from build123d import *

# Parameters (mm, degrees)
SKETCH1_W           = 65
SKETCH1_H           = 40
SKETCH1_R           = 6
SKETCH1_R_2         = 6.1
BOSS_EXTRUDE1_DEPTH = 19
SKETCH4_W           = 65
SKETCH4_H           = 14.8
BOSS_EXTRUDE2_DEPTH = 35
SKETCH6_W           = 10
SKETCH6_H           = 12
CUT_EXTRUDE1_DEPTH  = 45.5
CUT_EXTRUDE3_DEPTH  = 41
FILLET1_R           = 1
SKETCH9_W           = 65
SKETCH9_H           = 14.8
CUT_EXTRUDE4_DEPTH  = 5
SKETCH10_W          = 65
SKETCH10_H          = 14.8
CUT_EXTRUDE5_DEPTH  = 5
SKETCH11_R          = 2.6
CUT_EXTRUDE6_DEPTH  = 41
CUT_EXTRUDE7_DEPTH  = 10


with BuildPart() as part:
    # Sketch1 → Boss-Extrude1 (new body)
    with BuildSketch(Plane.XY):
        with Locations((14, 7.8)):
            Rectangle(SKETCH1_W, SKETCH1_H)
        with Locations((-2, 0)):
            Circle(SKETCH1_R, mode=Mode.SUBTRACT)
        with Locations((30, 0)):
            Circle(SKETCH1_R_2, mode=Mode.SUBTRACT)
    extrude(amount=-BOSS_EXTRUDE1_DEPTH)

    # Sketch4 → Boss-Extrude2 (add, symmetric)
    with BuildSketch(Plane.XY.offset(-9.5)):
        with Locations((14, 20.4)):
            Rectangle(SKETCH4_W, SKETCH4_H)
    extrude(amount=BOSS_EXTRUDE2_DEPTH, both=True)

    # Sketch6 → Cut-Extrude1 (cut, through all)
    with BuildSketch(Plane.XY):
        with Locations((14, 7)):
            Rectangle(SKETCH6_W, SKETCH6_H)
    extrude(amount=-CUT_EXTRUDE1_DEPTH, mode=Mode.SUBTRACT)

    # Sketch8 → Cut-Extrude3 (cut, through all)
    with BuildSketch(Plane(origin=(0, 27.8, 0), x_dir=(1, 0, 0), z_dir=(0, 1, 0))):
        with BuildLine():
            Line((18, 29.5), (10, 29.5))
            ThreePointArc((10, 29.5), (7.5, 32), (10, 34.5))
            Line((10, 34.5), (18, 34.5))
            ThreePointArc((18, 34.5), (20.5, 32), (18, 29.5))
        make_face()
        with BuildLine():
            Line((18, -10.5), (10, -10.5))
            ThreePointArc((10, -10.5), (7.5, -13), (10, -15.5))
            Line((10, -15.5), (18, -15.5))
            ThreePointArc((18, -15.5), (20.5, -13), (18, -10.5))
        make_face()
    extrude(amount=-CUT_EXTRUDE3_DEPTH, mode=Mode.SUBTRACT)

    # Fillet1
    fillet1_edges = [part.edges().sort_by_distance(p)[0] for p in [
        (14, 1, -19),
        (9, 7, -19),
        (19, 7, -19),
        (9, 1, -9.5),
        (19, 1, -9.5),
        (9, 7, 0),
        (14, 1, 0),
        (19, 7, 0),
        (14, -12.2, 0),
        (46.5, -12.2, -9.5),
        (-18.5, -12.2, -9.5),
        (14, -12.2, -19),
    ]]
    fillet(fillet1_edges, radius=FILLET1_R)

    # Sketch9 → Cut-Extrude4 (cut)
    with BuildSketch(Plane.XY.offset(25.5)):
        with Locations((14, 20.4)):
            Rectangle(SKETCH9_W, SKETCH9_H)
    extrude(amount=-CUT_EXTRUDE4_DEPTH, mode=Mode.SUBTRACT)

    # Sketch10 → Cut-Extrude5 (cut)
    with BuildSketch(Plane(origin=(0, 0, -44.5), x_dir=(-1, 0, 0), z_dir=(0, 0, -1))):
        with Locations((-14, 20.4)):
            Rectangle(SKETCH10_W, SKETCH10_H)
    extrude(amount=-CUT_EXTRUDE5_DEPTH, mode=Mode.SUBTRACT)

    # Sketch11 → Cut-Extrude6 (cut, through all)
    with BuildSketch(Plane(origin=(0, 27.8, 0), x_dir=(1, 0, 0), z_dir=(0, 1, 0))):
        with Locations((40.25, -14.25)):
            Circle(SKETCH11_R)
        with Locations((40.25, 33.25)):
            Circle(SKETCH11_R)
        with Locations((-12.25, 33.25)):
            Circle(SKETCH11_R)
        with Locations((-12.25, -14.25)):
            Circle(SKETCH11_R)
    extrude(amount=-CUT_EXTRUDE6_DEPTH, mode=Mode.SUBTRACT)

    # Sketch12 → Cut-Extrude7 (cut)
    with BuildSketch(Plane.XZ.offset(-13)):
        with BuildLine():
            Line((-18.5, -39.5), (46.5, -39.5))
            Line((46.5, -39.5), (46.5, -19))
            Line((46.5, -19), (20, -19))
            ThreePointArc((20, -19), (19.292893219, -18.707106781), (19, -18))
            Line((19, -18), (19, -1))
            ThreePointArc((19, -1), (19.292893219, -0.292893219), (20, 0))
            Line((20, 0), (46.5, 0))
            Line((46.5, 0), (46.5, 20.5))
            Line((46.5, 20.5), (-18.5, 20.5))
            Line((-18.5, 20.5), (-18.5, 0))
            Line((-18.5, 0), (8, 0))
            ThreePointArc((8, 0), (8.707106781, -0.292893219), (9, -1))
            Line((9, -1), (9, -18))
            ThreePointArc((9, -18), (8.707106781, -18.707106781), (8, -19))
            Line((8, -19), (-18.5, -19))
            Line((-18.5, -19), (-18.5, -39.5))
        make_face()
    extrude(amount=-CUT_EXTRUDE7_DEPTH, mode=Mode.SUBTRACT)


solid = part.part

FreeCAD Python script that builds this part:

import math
import FreeCAD as App
import Part
import Sketcher

V = App.Vector
Q = App.Units.Quantity


def edges_at(feature, points):
    """Names of the edges that pass closest to the given points."""
    edges = feature.Shape.Edges
    near = lambda p: min(range(len(edges)), key=lambda i: edges[i].distToShape(Part.Vertex(*p))[0])
    return sorted({f"Edge{near(p) + 1}" for p in points})

doc = App.newDocument("Part")
params = doc.addObject("Spreadsheet::Sheet", "Params")
for row, (alias, value) in enumerate([
    ("sketch1_diameter", "12 mm"),
    ("sketch1_diameter2", "12.2 mm"),
    ("sketch1_width", "65 mm"),
    ("sketch1_height", "40 mm"),
    ("pad1_length", "19 mm"),
    ("sketch2_width", "65 mm"),
    ("sketch2_height", "14.8 mm"),
    ("pad2_length", "70 mm"),
    ("sketch3_width", "10 mm"),
    ("sketch3_height", "12 mm"),
    ("sketch4_radius", "2.5 mm"),
    ("sketch4_width", "8 mm"),
    ("fillet_radius", "1 mm"),
    ("sketch5_width", "65 mm"),
    ("sketch5_height", "14.8 mm"),
    ("pocket3_length", "5 mm"),
    ("sketch6_width", "65 mm"),
    ("sketch6_height", "14.8 mm"),
    ("pocket4_length", "5 mm"),
    ("sketch7_diameter", "5.2 mm"),
    ("sketch8_radius", "1 mm"),
    ("sketch8_width", "65 mm"),
    ("sketch8_height", "17 mm"),
    ("sketch8_width2", "26.5 mm"),
    ("sketch8_height2", "20.5 mm"),
    ("pocket6_length", "10 mm"),
], start=1):
    params.set(f"A{row}", alias)
    params.set(f"B{row}", "=" + value)
    params.setAlias(f"B{row}", alias)

body = doc.addObject("PartDesign::Body", "Body")

sketch1 = doc.addObject("Sketcher::SketchObject", "Sketch")
body.addObject(sketch1)
sketch1.AttachmentSupport = (doc.XY_Plane, [""])
sketch1.MapMode = "FlatFace"
sketch1.addGeometry([
    Part.LineSegment(V(-18, 28, 0), V(-18, -12, 0)),
    Part.LineSegment(V(-18, -12, 0), V(46, -12, 0)),
    Part.LineSegment(V(46, -12, 0), V(46, 28, 0)),
    Part.LineSegment(V(46, 28, 0), V(-18, 28, 0)),
    Part.Circle(V(-2, 0, 0), V(0, 0, 1), 6),
    Part.Circle(V(30, 0, 0), V(0, 0, 1), 6),
], False)
sketch1.addConstraint([
    Sketcher.Constraint("Coincident", 0, 2, 1, 1),
    Sketcher.Constraint("Coincident", 1, 2, 2, 1),
    Sketcher.Constraint("Coincident", 2, 2, 3, 1),
    Sketcher.Constraint("Coincident", 3, 2, 0, 1),
    Sketcher.Constraint("Vertical", 0),
    Sketcher.Constraint("Horizontal", 1),
    Sketcher.Constraint("Vertical", 2),
    Sketcher.Constraint("Horizontal", 3),
    Sketcher.Constraint("PointOnObject", 4, 3, -1),
    Sketcher.Constraint("PointOnObject", 5, 3, -1),
    Sketcher.Constraint("Diameter", 4, Q("12 mm")),
    Sketcher.Constraint("Diameter", 5, Q("12.2 mm")),
    Sketcher.Constraint("DistanceX", 1, 1, 1, 2, Q("65 mm")),
    Sketcher.Constraint("DistanceY", 0, 2, 0, 1, Q("40 mm")),
    Sketcher.Constraint("DistanceX", 4, 3, -1, 1, Q("2 mm")),
    Sketcher.Constraint("DistanceX", -1, 1, 5, 3, Q("30 mm")),
    Sketcher.Constraint("DistanceX", 0, 2, -1, 1, Q("18.5 mm")),
    Sketcher.Constraint("DistanceY", 0, 2, -1, 1, Q("12.2 mm")),
])
sketch1.setExpression("Constraints[10]", "Params.sketch1_diameter")
sketch1.setExpression("Constraints[11]", "Params.sketch1_diameter2")
sketch1.setExpression("Constraints[12]", "Params.sketch1_width")
sketch1.setExpression("Constraints[13]", "Params.sketch1_height")
pad1 = doc.addObject("PartDesign::Pad", "Pad")
body.addObject(pad1)
pad1.Profile = sketch1
pad1.setExpression("Length", "Params.pad1_length")
pad1.Reversed = True

sketch2 = doc.addObject("Sketcher::SketchObject", "Sketch001")
body.addObject(sketch2)
sketch2.AttachmentSupport = (doc.XY_Plane, [""])
sketch2.MapMode = "FlatFace"
sketch2.AttachmentOffset = App.Placement(V(0, 0, -9.5), App.Rotation())
sketch2.addGeometry([
    Part.LineSegment(V(-18, 28, 0), V(-18, 13, 0)),
    Part.LineSegment(V(-18, 13, 0), V(46, 13, 0)),
    Part.LineSegment(V(46, 13, 0), V(46, 28, 0)),
    Part.LineSegment(V(46, 28, 0), V(-18, 28, 0)),
], False)
sketch2.addConstraint([
    Sketcher.Constraint("Coincident", 0, 2, 1, 1),
    Sketcher.Constraint("Coincident", 1, 2, 2, 1),
    Sketcher.Constraint("Coincident", 2, 2, 3, 1),
    Sketcher.Constraint("Coincident", 3, 2, 0, 1),
    Sketcher.Constraint("Vertical", 0),
    Sketcher.Constraint("Horizontal", 1),
    Sketcher.Constraint("Vertical", 2),
    Sketcher.Constraint("Horizontal", 3),
    Sketcher.Constraint("DistanceX", 1, 1, 1, 2, Q("65 mm")),
    Sketcher.Constraint("DistanceY", 0, 2, 0, 1, Q("14.8 mm")),
    Sketcher.Constraint("DistanceY", -1, 1, 0, 2, Q("13 mm")),
    Sketcher.Constraint("DistanceX", 0, 2, -1, 1, Q("18.5 mm")),
])
sketch2.setExpression("Constraints[8]", "Params.sketch2_width")
sketch2.setExpression("Constraints[9]", "Params.sketch2_height")
pad2 = doc.addObject("PartDesign::Pad", "Pad001")
body.addObject(pad2)
pad2.Profile = sketch2
pad2.setExpression("Length", "Params.pad2_length")
pad2.Midplane = True

sketch3 = doc.addObject("Sketcher::SketchObject", "Sketch002")
body.addObject(sketch3)
sketch3.AttachmentSupport = (doc.XY_Plane, [""])
sketch3.MapMode = "FlatFace"
sketch3.addGeometry([
    Part.LineSegment(V(9, 13, 0), V(9, 1, 0)),
    Part.LineSegment(V(9, 1, 0), V(19, 1, 0)),
    Part.LineSegment(V(19, 1, 0), V(19, 13, 0)),
    Part.LineSegment(V(19, 13, 0), V(9, 13, 0)),
], False)
sketch3.addConstraint([
    Sketcher.Constraint("Coincident", 0, 2, 1, 1),
    Sketcher.Constraint("Coincident", 1, 2, 2, 1),
    Sketcher.Constraint("Coincident", 2, 2, 3, 1),
    Sketcher.Constraint("Coincident", 3, 2, 0, 1),
    Sketcher.Constraint("Vertical", 0),
    Sketcher.Constraint("Horizontal", 1),
    Sketcher.Constraint("Vertical", 2),
    Sketcher.Constraint("Horizontal", 3),
    Sketcher.Constraint("DistanceX", 1, 1, 1, 2, Q("10 mm")),
    Sketcher.Constraint("DistanceY", 0, 2, 0, 1, Q("12 mm")),
    Sketcher.Constraint("DistanceX", -1, 1, 0, 2, Q("9 mm")),
    Sketcher.Constraint("DistanceY", -1, 1, 0, 2, Q("1 mm")),
])
sketch3.setExpression("Constraints[8]", "Params.sketch3_width")
sketch3.setExpression("Constraints[9]", "Params.sketch3_height")
pocket1 = doc.addObject("PartDesign::Pocket", "Pocket")
body.addObject(pocket1)
pocket1.Profile = sketch3
pocket1.Type = "ThroughAll"

sketch4 = doc.addObject("Sketcher::SketchObject", "Sketch003")
body.addObject(sketch4)
sketch4.AttachmentSupport = (doc.XZ_Plane, [""])
sketch4.MapMode = "FlatFace"
sketch4.AttachmentOffset = App.Placement(V(0, 0, -27.8), App.Rotation())
sketch4.addGeometry([
    Part.LineSegment(V(10, -29.5, 0), V(18, -29.5, 0)),
    Part.ArcOfCircle(Part.Circle(V(18, -32, 0), V(0, 0, 1), 2.5), math.radians(-90), math.radians(90)),
    Part.LineSegment(V(18, -34.5, 0), V(10, -34.5, 0)),
    Part.ArcOfCircle(Part.Circle(V(10, -32, 0), V(0, 0, 1), 2.5), math.radians(90), math.radians(270)),
    Part.LineSegment(V(18, 10.5, 0), V(10, 10.5, 0)),
    Part.ArcOfCircle(Part.Circle(V(10, 13, 0), V(0, 0, 1), 2.5), math.radians(90), math.radians(270)),
    Part.LineSegment(V(10, 15.5, 0), V(18, 15.5, 0)),
    Part.ArcOfCircle(Part.Circle(V(18, 13, 0), V(0, 0, 1), 2.5), math.radians(-90), math.radians(90)),
], False)
sketch4.addConstraint([
    Sketcher.Constraint("Tangent", 0, 2, 1, 2),
    Sketcher.Constraint("Tangent", 1, 1, 2, 1),
    Sketcher.Constraint("Tangent", 2, 2, 3, 2),
    Sketcher.Constraint("Tangent", 3, 1, 0, 1),
    Sketcher.Constraint("Tangent", 4, 2, 5, 2),
    Sketcher.Constraint("Tangent", 5, 1, 6, 1),
    Sketcher.Constraint("Tangent", 6, 2, 7, 2),
    Sketcher.Constraint("Tangent", 7, 1, 4, 1),
    Sketcher.Constraint("Horizontal", 0),
    Sketcher.Constraint("Horizontal", 2),
    Sketcher.Constraint("Horizontal", 4),
    Sketcher.Constraint("Horizontal", 6),
    Sketcher.Constraint("Equal", 3, 5),
    Sketcher.Constraint("Vertical", 3, 3, 5, 3),
    Sketcher.Constraint("Vertical", 1, 3, 7, 3),
    Sketcher.Constraint("Radius", 1, Q("2.5 mm")),
    Sketcher.Constraint("DistanceX", 0, 1, 0, 2, Q("8 mm")),
    Sketcher.Constraint("DistanceX", -1, 1, 1, 3, Q("18 mm")),
    Sketcher.Constraint("DistanceY", 1, 3, -1, 1, Q("32 mm")),
    Sketcher.Constraint("DistanceY", -1, 1, 5, 3, Q("13 mm")),
])
sketch4.setExpression("Constraints[15]", "Params.sketch4_radius")
sketch4.setExpression("Constraints[16]", "Params.sketch4_width")
pocket2 = doc.addObject("PartDesign::Pocket", "Pocket001")
body.addObject(pocket2)
pocket2.Profile = sketch4
pocket2.Type = "ThroughAll"
pocket2.Reversed = True
doc.recompute()

fillet = doc.addObject("PartDesign::Fillet", "Fillet")
body.addObject(fillet)
fillet.Base = (pocket2, edges_at(pocket2, [
    (14, 1, -19),
    (9, 7, -19),
    (19, 7, -19),
    (9, 1, -9.5),
    (19, 1, -9.5),
    (9, 7, 0),
    (14, 1, 0),
    (19, 7, 0),
    (14, -12.2, 0),
    (46.5, -12.2, -9.5),
    (-18.5, -12.2, -9.5),
    (14, -12.2, -19),
]))
fillet.setExpression("Radius", "Params.fillet_radius")

sketch5 = doc.addObject("Sketcher::SketchObject", "Sketch004")
body.addObject(sketch5)
sketch5.AttachmentSupport = (doc.XY_Plane, [""])
sketch5.MapMode = "FlatFace"
sketch5.AttachmentOffset = App.Placement(V(0, 0, 25.5), App.Rotation())
sketch5.addGeometry([
    Part.LineSegment(V(-18, 28, 0), V(-18, 13, 0)),
    Part.LineSegment(V(-18, 13, 0), V(46, 13, 0)),
    Part.LineSegment(V(46, 13, 0), V(46, 28, 0)),
    Part.LineSegment(V(46, 28, 0), V(-18, 28, 0)),
], False)
sketch5.addConstraint([
    Sketcher.Constraint("Coincident", 0, 2, 1, 1),
    Sketcher.Constraint("Coincident", 1, 2, 2, 1),
    Sketcher.Constraint("Coincident", 2, 2, 3, 1),
    Sketcher.Constraint("Coincident", 3, 2, 0, 1),
    Sketcher.Constraint("Vertical", 0),
    Sketcher.Constraint("Horizontal", 1),
    Sketcher.Constraint("Vertical", 2),
    Sketcher.Constraint("Horizontal", 3),
    Sketcher.Constraint("DistanceX", 1, 1, 1, 2, Q("65 mm")),
    Sketcher.Constraint("DistanceY", 0, 2, 0, 1, Q("14.8 mm")),
    Sketcher.Constraint("DistanceY", -1, 1, 0, 2, Q("13 mm")),
    Sketcher.Constraint("DistanceX", 0, 2, -1, 1, Q("18.5 mm")),
])
sketch5.setExpression("Constraints[8]", "Params.sketch5_width")
sketch5.setExpression("Constraints[9]", "Params.sketch5_height")
pocket3 = doc.addObject("PartDesign::Pocket", "Pocket002")
body.addObject(pocket3)
pocket3.Profile = sketch5
pocket3.setExpression("Length", "Params.pocket3_length")

sketch6 = doc.addObject("Sketcher::SketchObject", "Sketch005")
body.addObject(sketch6)
sketch6.AttachmentSupport = (doc.XY_Plane, [""])
sketch6.MapMode = "FlatFace"
sketch6.AttachmentOffset = App.Placement(V(0, 0, -44.5), App.Rotation())
sketch6.addGeometry([
    Part.LineSegment(V(46, 28, 0), V(46, 13, 0)),
    Part.LineSegment(V(46, 13, 0), V(-18, 13, 0)),
    Part.LineSegment(V(-18, 13, 0), V(-18, 28, 0)),
    Part.LineSegment(V(-18, 28, 0), V(46, 28, 0)),
], False)
sketch6.addConstraint([
    Sketcher.Constraint("Coincident", 0, 2, 1, 1),
    Sketcher.Constraint("Coincident", 1, 2, 2, 1),
    Sketcher.Constraint("Coincident", 2, 2, 3, 1),
    Sketcher.Constraint("Coincident", 3, 2, 0, 1),
    Sketcher.Constraint("Vertical", 0),
    Sketcher.Constraint("Horizontal", 1),
    Sketcher.Constraint("Vertical", 2),
    Sketcher.Constraint("Horizontal", 3),
    Sketcher.Constraint("DistanceX", 1, 2, 1, 1, Q("65 mm")),
    Sketcher.Constraint("DistanceY", 0, 2, 0, 1, Q("14.8 mm")),
    Sketcher.Constraint("DistanceY", -1, 1, 0, 2, Q("13 mm")),
    Sketcher.Constraint("DistanceX", -1, 1, 0, 2, Q("46.5 mm")),
])
sketch6.setExpression("Constraints[8]", "Params.sketch6_width")
sketch6.setExpression("Constraints[9]", "Params.sketch6_height")
pocket4 = doc.addObject("PartDesign::Pocket", "Pocket003")
body.addObject(pocket4)
pocket4.Profile = sketch6
pocket4.setExpression("Length", "Params.pocket4_length")
pocket4.Reversed = True

sketch7 = doc.addObject("Sketcher::SketchObject", "Sketch006")
body.addObject(sketch7)
sketch7.AttachmentSupport = (doc.XZ_Plane, [""])
sketch7.MapMode = "FlatFace"
sketch7.AttachmentOffset = App.Placement(V(0, 0, -27.8), App.Rotation())
sketch7.addGeometry([
    Part.Circle(V(40.2, 14.2, 0), V(0, 0, 1), 2.6),
    Part.Circle(V(40.2, -33.2, 0), V(0, 0, 1), 2.6),
    Part.Circle(V(-12.2, -33.2, 0), V(0, 0, 1), 2.6),
    Part.Circle(V(-12.2, 14.2, 0), V(0, 0, 1), 2.6),
], False)
sketch7.addConstraint([
    Sketcher.Constraint("Equal", 0, 1),
    Sketcher.Constraint("Equal", 1, 2),
    Sketcher.Constraint("Equal", 2, 3),
    Sketcher.Constraint("Horizontal", 1, 3, 2, 3),
    Sketcher.Constraint("Horizontal", 0, 3, 3, 3),
    Sketcher.Constraint("Vertical", 0, 3, 1, 3),
    Sketcher.Constraint("Vertical", 2, 3, 3, 3),
    Sketcher.Constraint("Diameter", 0, Q("5.2 mm")),
    Sketcher.Constraint("DistanceY", 1, 3, 0, 3, Q("47.5 mm")),
    Sketcher.Constraint("DistanceX", 2, 3, 1, 3, Q("52.5 mm")),
    Sketcher.Constraint("DistanceX", -1, 1, 0, 3, Q("40.25 mm")),
    Sketcher.Constraint("DistanceY", -1, 1, 0, 3, Q("14.25 mm")),
])
sketch7.setExpression("Constraints[7]", "Params.sketch7_diameter")
pocket5 = doc.addObject("PartDesign::Pocket", "Pocket004")
body.addObject(pocket5)
pocket5.Profile = sketch7
pocket5.Type = "ThroughAll"
pocket5.Reversed = True

sketch8 = doc.addObject("Sketcher::SketchObject", "Sketch007")
body.addObject(sketch8)
sketch8.AttachmentSupport = (doc.XZ_Plane, [""])
sketch8.MapMode = "FlatFace"
sketch8.AttachmentOffset = App.Placement(V(0, 0, -13), App.Rotation())
sketch8.addGeometry([
    Part.LineSegment(V(-18.5, -39.5, 0), V(46.5, -39.5, 0)),
    Part.LineSegment(V(46.5, -39.5, 0), V(46.5, -19, 0)),
    Part.LineSegment(V(46.5, -19, 0), V(20, -19, 0)),
    Part.ArcOfCircle(Part.Circle(V(20, -18, 0), V(0, 0, 1), 1), math.radians(-180), math.radians(-90)),
    Part.LineSegment(V(19, -18, 0), V(19, -1, 0)),
    Part.ArcOfCircle(Part.Circle(V(20, -1, 0), V(0, 0, 1), 1), math.radians(90), math.radians(180)),
    Part.LineSegment(V(20, 0, 0), V(46.5, 0, 0)),
    Part.LineSegment(V(46.5, 0, 0), V(46.5, 20.5, 0)),
    Part.LineSegment(V(46.5, 20.5, 0), V(-18.5, 20.5, 0)),
    Part.LineSegment(V(-18.5, 20.5, 0), V(-18.5, 0, 0)),
    Part.LineSegment(V(-18.5, 0, 0), V(8, 0, 0)),
    Part.ArcOfCircle(Part.Circle(V(8, -1, 0), V(0, 0, 1), 1), math.radians(0), math.radians(90)),
    Part.LineSegment(V(9, -1, 0), V(9, -18, 0)),
    Part.ArcOfCircle(Part.Circle(V(8, -18, 0), V(0, 0, 1), 1), math.radians(-90), math.radians(0)),
    Part.LineSegment(V(8, -19, 0), V(-18.5, -19, 0)),
    Part.LineSegment(V(-18.5, -19, 0), V(-18.5, -39.5, 0)),
], False)
sketch8.addConstraint([
    Sketcher.Constraint("Coincident", 0, 2, 1, 1),
    Sketcher.Constraint("Coincident", 1, 2, 2, 1),
    Sketcher.Constraint("Tangent", 2, 2, 3, 2),
    Sketcher.Constraint("Tangent", 3, 1, 4, 1),
    Sketcher.Constraint("Tangent", 4, 2, 5, 2),
    Sketcher.Constraint("Tangent", 5, 1, 6, 1),
    Sketcher.Constraint("Coincident", 6, 2, 7, 1),
    Sketcher.Constraint("Coincident", 7, 2, 8, 1),
    Sketcher.Constraint("Coincident", 8, 2, 9, 1),
    Sketcher.Constraint("Coincident", 9, 2, 10, 1),
    Sketcher.Constraint("Tangent", 10, 2, 11, 2),
    Sketcher.Constraint("Tangent", 11, 1, 12, 1),
    Sketcher.Constraint("Tangent", 12, 2, 13, 2),
    Sketcher.Constraint("Tangent", 13, 1, 14, 1),
    Sketcher.Constraint("Coincident", 14, 2, 15, 1),
    Sketcher.Constraint("Coincident", 15, 2, 0, 1),
    Sketcher.Constraint("Horizontal", 0),
    Sketcher.Constraint("Vertical", 1),
    Sketcher.Constraint("Horizontal", 2),
    Sketcher.Constraint("Vertical", 4),
    Sketcher.Constraint("Horizontal", 6),
    Sketcher.Constraint("Vertical", 7),
    Sketcher.Constraint("Horizontal", 8),
    Sketcher.Constraint("Vertical", 9),
    Sketcher.Constraint("Horizontal", 10),
    Sketcher.Constraint("Vertical", 12),
    Sketcher.Constraint("Horizontal", 14),
    Sketcher.Constraint("Vertical", 15),
    Sketcher.Constraint("Equal", 3, 5),
    Sketcher.Constraint("Equal", 5, 11),
    Sketcher.Constraint("Equal", 11, 13),
    Sketcher.Constraint("PointOnObject", 5, 1, -1),
    Sketcher.Constraint("PointOnObject", 9, 2, -1),
    Sketcher.Constraint("Horizontal", 3, 3, 13, 3),
    Sketcher.Constraint("Vertical", 1, 2, 6, 2),
    Sketcher.Constraint("Vertical", 9, 2, 14, 2),
    Sketcher.Constraint("Equal", 6, 10),
    Sketcher.Constraint("Equal", 1, 7),
    Sketcher.Constraint("Radius", 3, Q("1 mm")),
    Sketcher.Constraint("DistanceX", 0, 1, 0, 2, Q("65 mm")),
    Sketcher.Constraint("DistanceY", 4, 1, 4, 2, Q("17 mm")),
    Sketcher.Constraint("DistanceX", 2, 2, 2, 1, Q("26.5 mm")),
    Sketcher.Constraint("DistanceY", 1, 1, 1, 2, Q("20.5 mm")),
    Sketcher.Constraint("DistanceX", -1, 1, 3, 3, Q("20 mm")),
])
sketch8.setExpression("Constraints[38]", "Params.sketch8_radius")
sketch8.setExpression("Constraints[39]", "Params.sketch8_width")
sketch8.setExpression("Constraints[40]", "Params.sketch8_height")
sketch8.setExpression("Constraints[41]", "Params.sketch8_width2")
sketch8.setExpression("Constraints[42]", "Params.sketch8_height2")
pocket6 = doc.addObject("PartDesign::Pocket", "Pocket005")
body.addObject(pocket6)
pocket6.Profile = sketch8
pocket6.setExpression("Length", "Params.pocket6_length")

doc.recompute()
